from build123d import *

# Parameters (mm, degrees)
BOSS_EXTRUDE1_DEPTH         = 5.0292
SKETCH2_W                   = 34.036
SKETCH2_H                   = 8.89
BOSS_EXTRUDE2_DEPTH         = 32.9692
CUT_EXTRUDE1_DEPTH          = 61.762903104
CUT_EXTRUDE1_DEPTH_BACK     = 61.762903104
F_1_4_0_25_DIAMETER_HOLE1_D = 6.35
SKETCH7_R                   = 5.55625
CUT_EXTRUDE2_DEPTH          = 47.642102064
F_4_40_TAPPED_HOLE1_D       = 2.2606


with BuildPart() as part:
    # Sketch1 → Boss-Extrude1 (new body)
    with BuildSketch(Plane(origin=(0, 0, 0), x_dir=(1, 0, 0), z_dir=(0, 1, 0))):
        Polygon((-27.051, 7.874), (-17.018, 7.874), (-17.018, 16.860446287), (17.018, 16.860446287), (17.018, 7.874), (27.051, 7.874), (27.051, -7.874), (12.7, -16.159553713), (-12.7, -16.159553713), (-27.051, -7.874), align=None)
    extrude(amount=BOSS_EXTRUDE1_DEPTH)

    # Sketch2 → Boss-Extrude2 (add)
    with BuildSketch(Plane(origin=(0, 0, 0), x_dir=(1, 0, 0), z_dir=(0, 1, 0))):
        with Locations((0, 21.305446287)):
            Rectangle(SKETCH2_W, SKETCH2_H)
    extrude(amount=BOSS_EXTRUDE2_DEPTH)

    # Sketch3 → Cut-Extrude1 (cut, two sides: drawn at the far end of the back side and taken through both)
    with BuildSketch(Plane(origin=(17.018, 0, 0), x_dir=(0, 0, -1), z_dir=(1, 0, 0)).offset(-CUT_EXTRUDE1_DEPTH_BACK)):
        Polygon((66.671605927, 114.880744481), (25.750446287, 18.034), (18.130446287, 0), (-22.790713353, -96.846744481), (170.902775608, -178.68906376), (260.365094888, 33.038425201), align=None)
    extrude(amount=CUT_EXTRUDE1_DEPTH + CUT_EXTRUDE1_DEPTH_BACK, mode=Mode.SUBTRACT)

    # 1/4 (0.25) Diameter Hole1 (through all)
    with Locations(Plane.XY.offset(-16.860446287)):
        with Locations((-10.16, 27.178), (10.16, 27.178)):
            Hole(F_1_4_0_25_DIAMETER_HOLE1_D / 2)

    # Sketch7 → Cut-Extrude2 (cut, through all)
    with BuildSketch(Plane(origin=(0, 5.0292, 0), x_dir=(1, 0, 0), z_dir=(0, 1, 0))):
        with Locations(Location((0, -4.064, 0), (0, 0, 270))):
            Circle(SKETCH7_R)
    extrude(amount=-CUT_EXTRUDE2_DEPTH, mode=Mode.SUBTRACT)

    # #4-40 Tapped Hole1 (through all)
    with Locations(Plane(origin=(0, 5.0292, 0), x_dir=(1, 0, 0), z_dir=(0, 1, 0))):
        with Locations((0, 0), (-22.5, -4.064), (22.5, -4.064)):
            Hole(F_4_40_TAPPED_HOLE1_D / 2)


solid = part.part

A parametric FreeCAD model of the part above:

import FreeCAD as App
import Part
import Sketcher
from FreeCAD import Vector
Q = App.Units.Quantity

doc = App.newDocument("Part")
body = doc.addObject("PartDesign::Body", "Body")

# Sketch on XZ plane
sketch1 = body.newObject("Sketcher::SketchObject", "Sketch")
sketch1.AttachmentSupport = (doc.getObject("XZ_Plane"), [""])
sketch1.MapMode = "FlatFace"
sketch1.addGeometry(Part.LineSegment(Vector(-17, -8, 0), Vector(-27, -8, 0)), False)
sketch1.addGeometry(Part.LineSegment(Vector(-27, -8, 0), Vector(-27, 8, 0)), False)
sketch1.addGeometry(Part.LineSegment(Vector(-27, 8, 0), Vector(-13, 16, 0)), False)
sketch1.addGeometry(Part.LineSegment(Vector(-13, 16, 0), Vector(13, 16, 0)), False)
sketch1.addGeometry(Part.LineSegment(Vector(13, 16, 0), Vector(27, 8, 0)), False)
sketch1.addGeometry(Part.LineSegment(Vector(27, 8, 0), Vector(27, -8, 0)), False)
sketch1.addGeometry(Part.LineSegment(Vector(27, -8, 0), Vector(17, -8, 0)), False)
sketch1.addGeometry(Part.LineSegment(Vector(17, -8, 0), Vector(17, -17, 0)), False)
sketch1.addGeometry(Part.LineSegment(Vector(17, -17, 0), Vector(-17, -17, 0)), False)
sketch1.addGeometry(Part.LineSegment(Vector(-17, -17, 0), Vector(-17, -8, 0)), False)
sketch1.addConstraint(Sketcher.Constraint("Coincident", 0, 2, 1, 1))
sketch1.addConstraint(Sketcher.Constraint("Coincident", 1, 2, 2, 1))
sketch1.addConstraint(Sketcher.Constraint("Coincident", 2, 2, 3, 1))
sketch1.addConstraint(Sketcher.Constraint("Coincident", 3, 2, 4, 1))
sketch1.addConstraint(Sketcher.Constraint("Coincident", 4, 2, 5, 1))
sketch1.addConstraint(Sketcher.Constraint("Coincident", 5, 2, 6, 1))
sketch1.addConstraint(Sketcher.Constraint("Coincident", 6, 2, 7, 1))
sketch1.addConstraint(Sketcher.Constraint("Coincident", 7, 2, 8, 1))
sketch1.addConstraint(Sketcher.Constraint("Coincident", 8, 2, 9, 1))
sketch1.addConstraint(Sketcher.Constraint("Coincident", 9, 2, 0, 1))
sketch1.addConstraint(Sketcher.Constraint("Horizontal", 0))
sketch1.addConstraint(Sketcher.Constraint("Vertical", 1))
sketch1.addConstraint(Sketcher.Constraint("Horizontal", 3))
sketch1.addConstraint(Sketcher.Constraint("Vertical", 5))
sketch1.addConstraint(Sketcher.Constraint("Horizontal", 6))
sketch1.addConstraint(Sketcher.Constraint("Vertical", 7))
sketch1.addConstraint(Sketcher.Constraint("Horizontal", 8))
sketch1.addConstraint(Sketcher.Constraint("Vertical", 9))
sketch1.addConstraint(Sketcher.Constraint("Symmetric", 0, 2, 4, 2, -1, 1))
sketch1.addConstraint(Sketcher.Constraint("Symmetric", 6, 2, 9, 2, -2))
sketch1.addConstraint(Sketcher.Constraint("Horizontal", 1, 2, 4, 2))
sketch1.addConstraint(Sketcher.Constraint("Equal", 2, 4))
sketch1.addConstraint(Sketcher.Constraint("DistanceX", 3, 1, 3, 2, Q("1 in")))
sketch1.addConstraint(Sketcher.Constraint("Angle", 2, Q("30 deg")))
sketch1.addConstraint(Sketcher.Constraint("DistanceX", 8, 2, 8, 1, Q("1.34 in")))
sketch1.addConstraint(Sketcher.Constraint("DistanceY", 1, 1, 1, 2, Q("0.62 in")))
sketch1.addConstraint(Sketcher.Constraint("DistanceY", 7, 2, 3, 2, Q("1.3 in")))
sketch1.addConstraint(Sketcher.Constraint("DistanceX", 0, 2, 0, 1, Q("0.395 in")))
pad1 = body.newObject("PartDesign::Pad", "Pad")
pad1.Profile = sketch1
pad1.Length = Q("0.198 in")
pad1.Reversed = True

# Sketch on XZ plane
sketch2 = body.newObject("Sketcher::SketchObject", "Sketch001")
sketch2.AttachmentSupport = (doc.getObject("XZ_Plane"), [""])
sketch2.MapMode = "FlatFace"
sketch2.addGeometry(Part.LineSegment(Vector(-17, -26, 0), Vector(-17, -17, 0)), False)
sketch2.addGeometry(Part.LineSegment(Vector(-17, -17, 0), Vector(17, -17, 0)), False)
sketch2.addGeometry(Part.LineSegment(Vector(17, -17, 0), Vector(17, -26, 0)), False)
sketch2.addGeometry(Part.LineSegment(Vector(17, -26, 0), Vector(-17, -26, 0)), False)
sketch2.addConstraint(Sketcher.Constraint("Coincident", 0, 2, 1, 1))
sketch2.addConstraint(Sketcher.Constraint("Coincident", 1, 2, 2, 1))
sketch2.addConstraint(Sketcher.Constraint("Coincident", 2, 2, 3, 1))
sketch2.addConstraint(Sketcher.Constraint("Coincident", 3, 2, 0, 1))
sketch2.addConstraint(Sketcher.Constraint("Vertical", 0))
sketch2.addConstraint(Sketcher.Constraint("Horizontal", 1))
sketch2.addConstraint(Sketcher.Constraint("Vertical", 2))
sketch2.addConstraint(Sketcher.Constraint("Horizontal", 3))
sketch2.addConstraint(Sketcher.Constraint("DistanceX", 1, 1, 1, 2, Q("1.34 in")))
sketch2.addConstraint(Sketcher.Constraint("DistanceY", 0, 1, 0, 2, Q("0.35 in")))
sketch2.addConstraint(Sketcher.Constraint("DistanceX", 0, 2, -1, 1, Q("0.67 in")))
sketch2.addConstraint(Sketcher.Constraint("DistanceY", 0, 2, -1, 1, 16.860446))
pad2 = body.newObject("PartDesign::Pad", "Pad001")
pad2.Profile = sketch2
pad2.Length = Q("1.298 in")
pad2.Reversed = True

# Sketch on YZ plane
sketch3 = body.newObject("Sketcher::SketchObject", "Sketch002")
sketch3.AttachmentSupport = (doc.getObject("YZ_Plane"), [""])
sketch3.MapMode = "FlatFace"
sketch3.AttachmentOffset = App.Placement(Vector(0, 0, 0.67 * 25.4), App.Rotation())
sketch3.addGeometry(Part.LineSegment(Vector(115, -67, 0), Vector(18, -26, 0)), False)
sketch3.addGeometry(Part.LineSegment(Vector(18, -26, 0), Vector(0, -18, 0)), False)
sketch3.addGeometry(Part.LineSegment(Vector(0, -18, 0), Vector(-97, 23, 0)), False)
sketch3.addGeometry(Part.LineSegment(Vector(-97, 23, 0), Vector(-179, -171, 0)), False)
sketch3.addGeometry(Part.LineSegment(Vector(-179, -171, 0), Vector(33, -260, 0)), False)
sketch3.addGeometry(Part.LineSegment(Vector(33, -260, 0), Vector(115, -67, 0)), False)
sketch3.addConstraint(Sketcher.Constraint("Coincident", 0, 2, 1, 1))
sketch3.addConstraint(Sketcher.Constraint("Coincident", 1, 2, 2, 1))
sketch3.addConstraint(Sketcher.Constraint("Coincident", 2, 2, 3, 1))
sketch3.addConstraint(Sketcher.Constraint("Coincident", 3, 2, 4, 1))
sketch3.addConstraint(Sketcher.Constraint("Coincident", 4, 2, 5, 1))
sketch3.addConstraint(Sketcher.Constraint("Coincident", 5, 2, 0, 1))
sketch3.addConstraint(Sketcher.Constraint("PointOnObject", 1, 2, -2))
sketch3.addConstraint(Sketcher.Constraint("Parallel", 0, 1))
sketch3.addConstraint(Sketcher.Constraint("Parallel", 1, 2))
sketch3.addConstraint(Sketcher.Constraint("Perpendicular", 2, 3))
sketch3.addConstraint(Sketcher.Constraint("Perpendicular", 3, 4))
sketch3.addConstraint(Sketcher.Constraint("Perpendicular", 4, 5))
sketch3.addConstraint(Sketcher.Constraint("Equal", 0, 2))
sketch3.addConstraint(Sketcher.Constraint("DistanceY", 0, 2, 1, 2, Q("0.3 in")))
sketch3.addConstraint(Sketcher.Constraint("DistanceX", -1, 1, 0, 2, Q("0.71 in")))
sketch3.addConstraint(Sketcher.Constraint("Distance", 0, 105.137211))
sketch3.addConstraint(Sketcher.Constraint("DistanceX", 3, 2, 2, 2, 81.842319))
sketch3.addConstraint(Sketcher.Constraint("DistanceY", 0, 2, -1, 1, 25.750446))
pocket1 = body.newObject("PartDesign::Pocket", "Pocket")
pocket1.Profile = sketch3
pocket1.Type = "ThroughAll"
pocket1.Midplane = True

# Sketch on XY plane
sketch4 = body.newObject("Sketcher::SketchObject", "Sketch003")
sketch4.AttachmentSupport = (doc.getObject("XY_Plane"), [""])
sketch4.MapMode = "FlatFace"
sketch4.AttachmentOffset = App.Placement(Vector(0, 0, -16.860446), App.Rotation())
sketch4.addGeometry(Part.Circle(Vector(-10.2, 27.2, 0), Vector(0, 0, 1), 3.2), False)
sketch4.addGeometry(Part.Circle(Vector(10.2, 27.2, 0), Vector(0, 0, 1), 3.2), False)
sketch4.addConstraint(Sketcher.Constraint("Equal", 0, 1))
sketch4.addConstraint(Sketcher.Constraint("Symmetric", 0, 3, 1, 3, -2))
sketch4.addConstraint(Sketcher.Constraint("Diameter", 0, Q("0.25 in")))
sketch4.addConstraint(Sketcher.Constraint("DistanceX", 0, 3, -1, 1, Q("0.4 in")))
sketch4.addConstraint(Sketcher.Constraint("DistanceY", -1, 1, 0, 3, Q("1.07 in")))
doc.recompute()
hole = body.newObject("PartDesign::Hole", "Hole")
hole.Profile = sketch4
hole.ThreadType = "None"
hole.Diameter = Q("0.25 in")
hole.DepthType = "ThroughAll"

# Sketch on XZ plane
sketch5 = body.newObject("Sketcher::SketchObject", "Sketch004")
sketch5.AttachmentSupport = (doc.getObject("XZ_Plane"), [""])
sketch5.MapMode = "FlatFace"
sketch5.AttachmentOffset = App.Placement(Vector(0, 0, -0.198 * 25.4), App.Rotation())
sketch5.addGeometry(Part.Circle(Vector(0, 4, 0), Vector(0, 0, 1), 6), False)
sketch5.addConstraint(Sketcher.Constraint("PointOnObject", 0, 3, -2))
sketch5.addConstraint(Sketcher.Constraint("Diameter", 0, Q("0.4375 in")))
sketch5.addConstraint(Sketcher.Constraint("DistanceY", -1, 1, 0, 3, Q("0.16 in")))
pocket2 = body.newObject("PartDesign::Pocket", "Pocket001")
pocket2.Profile = sketch5
pocket2.Type = "ThroughAll"
pocket2.Reversed = True

# Sketch on XZ plane
sketch6 = body.newObject("Sketcher::SketchObject", "Sketch005")
sketch6.AttachmentSupport = (doc.getObject("XZ_Plane"), [""])
sketch6.MapMode = "FlatFace"
sketch6.AttachmentOffset = App.Placement(Vector(0, 0, -0.198 * 25.4), App.Rotation())
sketch6.addGeometry(Part.Circle(Vector(0, 0, 0), Vector(0, 0, 1), 1.1), False)
sketch6.addGeometry(Part.Circle(Vector(-22.5, 4.1, 0), Vector(0, 0, 1), 1.1), False)
sketch6.addGeometry(Part.Circle(Vector(22.5, 4.1, 0), Vector(0, 0, 1), 1.1), False)
sketch6.addConstraint(Sketcher.Constraint("Coincident", 0, 3, -1, 1))
sketch6.addConstraint(Sketcher.Constraint("Equal", 0, 1))
sketch6.addConstraint(Sketcher.Constraint("Equal", 1, 2))
sketch6.addConstraint(Sketcher.Constraint("Symmetric", 1, 3, 2, 3, -2))
sketch6.addConstraint(Sketcher.Constraint("Diameter", 0, Q("0.089 in")))
sketch6.addConstraint(Sketcher.Constraint("DistanceY", -1, 1, 1, 3, Q("0.16 in")))
sketch6.addConstraint(Sketcher.Constraint("DistanceX", 1, 3, -1, 1, 22.5))
doc.recompute()
hole2 = body.newObject("PartDesign::Hole", "Hole001")
hole2.Profile = sketch6
hole2.ThreadType = "None"
hole2.Diameter = Q("0.089 in")
hole2.DepthType = "ThroughAll"
hole2.Reversed = True

doc.recompute()
